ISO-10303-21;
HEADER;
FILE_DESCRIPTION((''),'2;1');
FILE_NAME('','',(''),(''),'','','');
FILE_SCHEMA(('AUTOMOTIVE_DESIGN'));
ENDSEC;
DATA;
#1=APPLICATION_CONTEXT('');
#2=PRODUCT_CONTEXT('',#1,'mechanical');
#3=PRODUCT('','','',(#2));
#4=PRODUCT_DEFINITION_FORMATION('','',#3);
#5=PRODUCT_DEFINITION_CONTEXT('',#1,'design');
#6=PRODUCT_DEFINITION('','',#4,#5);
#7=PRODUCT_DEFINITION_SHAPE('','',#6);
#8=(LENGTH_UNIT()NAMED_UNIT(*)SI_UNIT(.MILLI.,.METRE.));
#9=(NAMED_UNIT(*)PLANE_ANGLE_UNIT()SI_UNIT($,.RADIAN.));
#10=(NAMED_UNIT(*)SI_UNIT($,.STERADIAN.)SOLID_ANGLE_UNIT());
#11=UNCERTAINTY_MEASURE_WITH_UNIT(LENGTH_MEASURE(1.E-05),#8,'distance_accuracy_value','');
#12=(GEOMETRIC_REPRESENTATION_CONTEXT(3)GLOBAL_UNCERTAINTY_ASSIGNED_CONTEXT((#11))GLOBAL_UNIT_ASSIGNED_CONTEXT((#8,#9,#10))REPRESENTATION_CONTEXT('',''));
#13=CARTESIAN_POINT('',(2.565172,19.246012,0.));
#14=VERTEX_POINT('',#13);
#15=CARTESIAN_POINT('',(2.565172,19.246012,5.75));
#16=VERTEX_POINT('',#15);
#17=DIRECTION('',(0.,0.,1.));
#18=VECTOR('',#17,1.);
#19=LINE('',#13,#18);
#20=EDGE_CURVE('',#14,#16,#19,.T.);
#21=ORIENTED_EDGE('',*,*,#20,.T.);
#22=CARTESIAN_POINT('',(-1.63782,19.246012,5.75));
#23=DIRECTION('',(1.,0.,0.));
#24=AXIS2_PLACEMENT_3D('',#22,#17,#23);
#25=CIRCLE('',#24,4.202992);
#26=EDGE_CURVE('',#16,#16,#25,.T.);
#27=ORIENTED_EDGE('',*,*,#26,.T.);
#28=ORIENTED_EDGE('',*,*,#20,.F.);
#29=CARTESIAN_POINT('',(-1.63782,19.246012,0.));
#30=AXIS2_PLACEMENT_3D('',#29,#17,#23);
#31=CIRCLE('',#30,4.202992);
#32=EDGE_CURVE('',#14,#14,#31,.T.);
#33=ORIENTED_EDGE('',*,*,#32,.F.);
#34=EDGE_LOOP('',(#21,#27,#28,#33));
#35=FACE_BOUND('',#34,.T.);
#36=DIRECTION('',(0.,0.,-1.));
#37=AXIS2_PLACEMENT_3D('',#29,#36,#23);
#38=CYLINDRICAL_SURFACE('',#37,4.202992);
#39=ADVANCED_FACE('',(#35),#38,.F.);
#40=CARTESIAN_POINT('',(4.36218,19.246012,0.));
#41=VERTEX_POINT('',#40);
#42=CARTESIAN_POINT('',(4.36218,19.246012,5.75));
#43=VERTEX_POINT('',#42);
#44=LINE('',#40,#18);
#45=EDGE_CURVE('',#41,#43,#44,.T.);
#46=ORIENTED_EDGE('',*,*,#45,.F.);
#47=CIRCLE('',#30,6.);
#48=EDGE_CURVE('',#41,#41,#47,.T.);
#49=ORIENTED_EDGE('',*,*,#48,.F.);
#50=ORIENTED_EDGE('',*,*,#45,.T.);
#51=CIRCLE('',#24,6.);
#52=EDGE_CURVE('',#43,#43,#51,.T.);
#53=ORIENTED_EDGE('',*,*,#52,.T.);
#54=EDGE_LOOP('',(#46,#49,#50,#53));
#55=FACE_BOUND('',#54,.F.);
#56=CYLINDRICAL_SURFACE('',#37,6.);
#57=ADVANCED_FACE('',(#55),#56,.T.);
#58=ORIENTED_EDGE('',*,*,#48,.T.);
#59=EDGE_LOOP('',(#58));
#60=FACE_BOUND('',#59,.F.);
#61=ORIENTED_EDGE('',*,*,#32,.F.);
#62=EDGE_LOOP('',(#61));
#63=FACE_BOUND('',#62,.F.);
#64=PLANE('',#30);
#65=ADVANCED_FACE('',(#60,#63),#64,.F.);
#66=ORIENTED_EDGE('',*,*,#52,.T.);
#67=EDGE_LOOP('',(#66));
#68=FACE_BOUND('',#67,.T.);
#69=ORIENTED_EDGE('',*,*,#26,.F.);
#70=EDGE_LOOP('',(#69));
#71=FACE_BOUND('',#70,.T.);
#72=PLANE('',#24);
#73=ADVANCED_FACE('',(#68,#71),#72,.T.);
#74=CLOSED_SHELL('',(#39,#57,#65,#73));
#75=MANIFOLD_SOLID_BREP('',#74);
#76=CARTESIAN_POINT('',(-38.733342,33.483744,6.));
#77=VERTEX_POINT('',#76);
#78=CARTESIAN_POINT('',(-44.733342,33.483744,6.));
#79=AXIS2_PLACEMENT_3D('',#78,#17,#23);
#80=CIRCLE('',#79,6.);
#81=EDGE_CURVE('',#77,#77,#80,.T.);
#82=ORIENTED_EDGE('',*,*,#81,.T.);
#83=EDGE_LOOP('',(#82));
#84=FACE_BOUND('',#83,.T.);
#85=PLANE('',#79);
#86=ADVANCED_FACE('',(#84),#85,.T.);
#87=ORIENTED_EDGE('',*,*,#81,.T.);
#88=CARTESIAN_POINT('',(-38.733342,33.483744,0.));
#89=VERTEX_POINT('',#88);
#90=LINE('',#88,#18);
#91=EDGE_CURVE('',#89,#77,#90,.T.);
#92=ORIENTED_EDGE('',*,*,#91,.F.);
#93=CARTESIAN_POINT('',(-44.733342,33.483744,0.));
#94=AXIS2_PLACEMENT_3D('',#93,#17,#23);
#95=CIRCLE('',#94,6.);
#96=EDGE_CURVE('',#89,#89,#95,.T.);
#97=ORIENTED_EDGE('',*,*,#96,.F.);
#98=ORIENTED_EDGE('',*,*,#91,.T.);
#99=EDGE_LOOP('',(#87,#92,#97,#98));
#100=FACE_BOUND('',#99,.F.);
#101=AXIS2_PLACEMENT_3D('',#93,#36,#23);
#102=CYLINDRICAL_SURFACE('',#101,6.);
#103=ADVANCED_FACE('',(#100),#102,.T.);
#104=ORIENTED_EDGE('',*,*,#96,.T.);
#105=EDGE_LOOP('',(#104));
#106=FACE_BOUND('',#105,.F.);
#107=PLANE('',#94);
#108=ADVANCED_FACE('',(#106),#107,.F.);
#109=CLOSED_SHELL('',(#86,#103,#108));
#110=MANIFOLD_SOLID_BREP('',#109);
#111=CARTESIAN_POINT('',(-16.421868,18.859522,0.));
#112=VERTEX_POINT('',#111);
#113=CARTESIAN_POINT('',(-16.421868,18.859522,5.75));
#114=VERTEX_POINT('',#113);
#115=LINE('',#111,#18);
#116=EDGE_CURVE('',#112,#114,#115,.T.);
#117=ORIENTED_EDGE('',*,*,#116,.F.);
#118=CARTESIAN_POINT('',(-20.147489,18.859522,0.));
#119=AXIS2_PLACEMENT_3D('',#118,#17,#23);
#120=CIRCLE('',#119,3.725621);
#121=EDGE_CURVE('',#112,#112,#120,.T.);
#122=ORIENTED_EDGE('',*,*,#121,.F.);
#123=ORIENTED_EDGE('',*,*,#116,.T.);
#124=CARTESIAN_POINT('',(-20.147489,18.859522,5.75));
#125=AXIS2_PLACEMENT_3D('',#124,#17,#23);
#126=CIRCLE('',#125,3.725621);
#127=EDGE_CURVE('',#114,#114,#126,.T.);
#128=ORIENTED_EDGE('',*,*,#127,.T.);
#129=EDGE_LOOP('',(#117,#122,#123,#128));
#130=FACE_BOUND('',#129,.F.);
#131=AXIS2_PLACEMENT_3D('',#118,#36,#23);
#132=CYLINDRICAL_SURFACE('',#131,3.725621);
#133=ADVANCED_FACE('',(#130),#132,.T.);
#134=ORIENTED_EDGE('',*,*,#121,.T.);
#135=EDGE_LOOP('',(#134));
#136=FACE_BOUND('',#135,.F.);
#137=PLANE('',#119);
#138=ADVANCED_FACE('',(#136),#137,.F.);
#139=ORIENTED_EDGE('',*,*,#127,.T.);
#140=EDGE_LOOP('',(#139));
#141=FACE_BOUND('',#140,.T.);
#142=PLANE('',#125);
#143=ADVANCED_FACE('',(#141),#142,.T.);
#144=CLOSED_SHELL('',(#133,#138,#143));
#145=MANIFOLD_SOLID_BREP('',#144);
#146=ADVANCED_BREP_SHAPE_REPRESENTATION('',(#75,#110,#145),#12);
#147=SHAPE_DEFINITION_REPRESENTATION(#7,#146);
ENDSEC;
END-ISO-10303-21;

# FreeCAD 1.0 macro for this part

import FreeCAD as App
import Part
import Sketcher

V = App.Vector

doc = App.newDocument("Part")
body = doc.addObject("PartDesign::Body", "Body")

# Sketch on XY plane
sketch1 = body.newObject("Sketcher::SketchObject", "Sketch")
sketch1.AttachmentSupport = (doc.getObject("XY_Plane"), [""])
sketch1.MapMode = "FlatFace"
sketch1.addGeometry(Part.Circle(V(-44.733342, 33.483744, 0), V(0, 0, 1), 6), False)
sketch1.addConstraint(Sketcher.Constraint("Diameter", 0, 12.0))
sketch1.addConstraint(Sketcher.Constraint("DistanceX", 0, 3, -1, 1, 44.733342))
sketch1.addConstraint(Sketcher.Constraint("DistanceY", -1, 1, 0, 3, 33.483744))
pad1 = body.newObject("PartDesign::Pad", "Pad")
pad1.Profile = sketch1
pad1.Length = 6
body2 = doc.addObject("PartDesign::Body", "Body001")
body2.AllowCompound = True

# Sketch on XY plane
sketch2 = body2.newObject("Sketcher::SketchObject", "Sketch001")
sketch2.AttachmentSupport = (doc.getObject("XY_Plane001"), [""])
sketch2.MapMode = "FlatFace"
sketch2.addGeometry(Part.Circle(V(-1.63782, 19.246012, 0), V(0, 0, 1), 6), False)
sketch2.addGeometry(Part.Circle(V(-1.63782, 19.246012, 0), V(0, 0, 1), 4.202992), False)
sketch2.addGeometry(Part.Circle(V(-20.147489, 18.859522, 0), V(0, 0, 1), 3.725621), False)
sketch2.addConstraint(Sketcher.Constraint("Coincident", 1, 3, 0, 3))
sketch2.addConstraint(Sketcher.Constraint("Diameter", 0, 12.0))
sketch2.addConstraint(Sketcher.Constraint("Diameter", 2, 7.451242))
sketch2.addConstraint(Sketcher.Constraint("Diameter", 1, 8.405984))
sketch2.addConstraint(Sketcher.Constraint("DistanceX", 0, 3, -1, 1, 1.63782))
sketch2.addConstraint(Sketcher.Constraint("DistanceX", 2, 3, -1, 1, 20.147489))
sketch2.addConstraint(Sketcher.Constraint("DistanceY", -1, 1, 2, 3, 18.859522))
sketch2.addConstraint(Sketcher.Constraint("DistanceY", 2, 3, 0, 3, 0.38649))
pad2 = body2.newObject("PartDesign::Pad", "Pad001")
pad2.Profile = sketch2
pad2.Length = 5.75

doc.recompute()
